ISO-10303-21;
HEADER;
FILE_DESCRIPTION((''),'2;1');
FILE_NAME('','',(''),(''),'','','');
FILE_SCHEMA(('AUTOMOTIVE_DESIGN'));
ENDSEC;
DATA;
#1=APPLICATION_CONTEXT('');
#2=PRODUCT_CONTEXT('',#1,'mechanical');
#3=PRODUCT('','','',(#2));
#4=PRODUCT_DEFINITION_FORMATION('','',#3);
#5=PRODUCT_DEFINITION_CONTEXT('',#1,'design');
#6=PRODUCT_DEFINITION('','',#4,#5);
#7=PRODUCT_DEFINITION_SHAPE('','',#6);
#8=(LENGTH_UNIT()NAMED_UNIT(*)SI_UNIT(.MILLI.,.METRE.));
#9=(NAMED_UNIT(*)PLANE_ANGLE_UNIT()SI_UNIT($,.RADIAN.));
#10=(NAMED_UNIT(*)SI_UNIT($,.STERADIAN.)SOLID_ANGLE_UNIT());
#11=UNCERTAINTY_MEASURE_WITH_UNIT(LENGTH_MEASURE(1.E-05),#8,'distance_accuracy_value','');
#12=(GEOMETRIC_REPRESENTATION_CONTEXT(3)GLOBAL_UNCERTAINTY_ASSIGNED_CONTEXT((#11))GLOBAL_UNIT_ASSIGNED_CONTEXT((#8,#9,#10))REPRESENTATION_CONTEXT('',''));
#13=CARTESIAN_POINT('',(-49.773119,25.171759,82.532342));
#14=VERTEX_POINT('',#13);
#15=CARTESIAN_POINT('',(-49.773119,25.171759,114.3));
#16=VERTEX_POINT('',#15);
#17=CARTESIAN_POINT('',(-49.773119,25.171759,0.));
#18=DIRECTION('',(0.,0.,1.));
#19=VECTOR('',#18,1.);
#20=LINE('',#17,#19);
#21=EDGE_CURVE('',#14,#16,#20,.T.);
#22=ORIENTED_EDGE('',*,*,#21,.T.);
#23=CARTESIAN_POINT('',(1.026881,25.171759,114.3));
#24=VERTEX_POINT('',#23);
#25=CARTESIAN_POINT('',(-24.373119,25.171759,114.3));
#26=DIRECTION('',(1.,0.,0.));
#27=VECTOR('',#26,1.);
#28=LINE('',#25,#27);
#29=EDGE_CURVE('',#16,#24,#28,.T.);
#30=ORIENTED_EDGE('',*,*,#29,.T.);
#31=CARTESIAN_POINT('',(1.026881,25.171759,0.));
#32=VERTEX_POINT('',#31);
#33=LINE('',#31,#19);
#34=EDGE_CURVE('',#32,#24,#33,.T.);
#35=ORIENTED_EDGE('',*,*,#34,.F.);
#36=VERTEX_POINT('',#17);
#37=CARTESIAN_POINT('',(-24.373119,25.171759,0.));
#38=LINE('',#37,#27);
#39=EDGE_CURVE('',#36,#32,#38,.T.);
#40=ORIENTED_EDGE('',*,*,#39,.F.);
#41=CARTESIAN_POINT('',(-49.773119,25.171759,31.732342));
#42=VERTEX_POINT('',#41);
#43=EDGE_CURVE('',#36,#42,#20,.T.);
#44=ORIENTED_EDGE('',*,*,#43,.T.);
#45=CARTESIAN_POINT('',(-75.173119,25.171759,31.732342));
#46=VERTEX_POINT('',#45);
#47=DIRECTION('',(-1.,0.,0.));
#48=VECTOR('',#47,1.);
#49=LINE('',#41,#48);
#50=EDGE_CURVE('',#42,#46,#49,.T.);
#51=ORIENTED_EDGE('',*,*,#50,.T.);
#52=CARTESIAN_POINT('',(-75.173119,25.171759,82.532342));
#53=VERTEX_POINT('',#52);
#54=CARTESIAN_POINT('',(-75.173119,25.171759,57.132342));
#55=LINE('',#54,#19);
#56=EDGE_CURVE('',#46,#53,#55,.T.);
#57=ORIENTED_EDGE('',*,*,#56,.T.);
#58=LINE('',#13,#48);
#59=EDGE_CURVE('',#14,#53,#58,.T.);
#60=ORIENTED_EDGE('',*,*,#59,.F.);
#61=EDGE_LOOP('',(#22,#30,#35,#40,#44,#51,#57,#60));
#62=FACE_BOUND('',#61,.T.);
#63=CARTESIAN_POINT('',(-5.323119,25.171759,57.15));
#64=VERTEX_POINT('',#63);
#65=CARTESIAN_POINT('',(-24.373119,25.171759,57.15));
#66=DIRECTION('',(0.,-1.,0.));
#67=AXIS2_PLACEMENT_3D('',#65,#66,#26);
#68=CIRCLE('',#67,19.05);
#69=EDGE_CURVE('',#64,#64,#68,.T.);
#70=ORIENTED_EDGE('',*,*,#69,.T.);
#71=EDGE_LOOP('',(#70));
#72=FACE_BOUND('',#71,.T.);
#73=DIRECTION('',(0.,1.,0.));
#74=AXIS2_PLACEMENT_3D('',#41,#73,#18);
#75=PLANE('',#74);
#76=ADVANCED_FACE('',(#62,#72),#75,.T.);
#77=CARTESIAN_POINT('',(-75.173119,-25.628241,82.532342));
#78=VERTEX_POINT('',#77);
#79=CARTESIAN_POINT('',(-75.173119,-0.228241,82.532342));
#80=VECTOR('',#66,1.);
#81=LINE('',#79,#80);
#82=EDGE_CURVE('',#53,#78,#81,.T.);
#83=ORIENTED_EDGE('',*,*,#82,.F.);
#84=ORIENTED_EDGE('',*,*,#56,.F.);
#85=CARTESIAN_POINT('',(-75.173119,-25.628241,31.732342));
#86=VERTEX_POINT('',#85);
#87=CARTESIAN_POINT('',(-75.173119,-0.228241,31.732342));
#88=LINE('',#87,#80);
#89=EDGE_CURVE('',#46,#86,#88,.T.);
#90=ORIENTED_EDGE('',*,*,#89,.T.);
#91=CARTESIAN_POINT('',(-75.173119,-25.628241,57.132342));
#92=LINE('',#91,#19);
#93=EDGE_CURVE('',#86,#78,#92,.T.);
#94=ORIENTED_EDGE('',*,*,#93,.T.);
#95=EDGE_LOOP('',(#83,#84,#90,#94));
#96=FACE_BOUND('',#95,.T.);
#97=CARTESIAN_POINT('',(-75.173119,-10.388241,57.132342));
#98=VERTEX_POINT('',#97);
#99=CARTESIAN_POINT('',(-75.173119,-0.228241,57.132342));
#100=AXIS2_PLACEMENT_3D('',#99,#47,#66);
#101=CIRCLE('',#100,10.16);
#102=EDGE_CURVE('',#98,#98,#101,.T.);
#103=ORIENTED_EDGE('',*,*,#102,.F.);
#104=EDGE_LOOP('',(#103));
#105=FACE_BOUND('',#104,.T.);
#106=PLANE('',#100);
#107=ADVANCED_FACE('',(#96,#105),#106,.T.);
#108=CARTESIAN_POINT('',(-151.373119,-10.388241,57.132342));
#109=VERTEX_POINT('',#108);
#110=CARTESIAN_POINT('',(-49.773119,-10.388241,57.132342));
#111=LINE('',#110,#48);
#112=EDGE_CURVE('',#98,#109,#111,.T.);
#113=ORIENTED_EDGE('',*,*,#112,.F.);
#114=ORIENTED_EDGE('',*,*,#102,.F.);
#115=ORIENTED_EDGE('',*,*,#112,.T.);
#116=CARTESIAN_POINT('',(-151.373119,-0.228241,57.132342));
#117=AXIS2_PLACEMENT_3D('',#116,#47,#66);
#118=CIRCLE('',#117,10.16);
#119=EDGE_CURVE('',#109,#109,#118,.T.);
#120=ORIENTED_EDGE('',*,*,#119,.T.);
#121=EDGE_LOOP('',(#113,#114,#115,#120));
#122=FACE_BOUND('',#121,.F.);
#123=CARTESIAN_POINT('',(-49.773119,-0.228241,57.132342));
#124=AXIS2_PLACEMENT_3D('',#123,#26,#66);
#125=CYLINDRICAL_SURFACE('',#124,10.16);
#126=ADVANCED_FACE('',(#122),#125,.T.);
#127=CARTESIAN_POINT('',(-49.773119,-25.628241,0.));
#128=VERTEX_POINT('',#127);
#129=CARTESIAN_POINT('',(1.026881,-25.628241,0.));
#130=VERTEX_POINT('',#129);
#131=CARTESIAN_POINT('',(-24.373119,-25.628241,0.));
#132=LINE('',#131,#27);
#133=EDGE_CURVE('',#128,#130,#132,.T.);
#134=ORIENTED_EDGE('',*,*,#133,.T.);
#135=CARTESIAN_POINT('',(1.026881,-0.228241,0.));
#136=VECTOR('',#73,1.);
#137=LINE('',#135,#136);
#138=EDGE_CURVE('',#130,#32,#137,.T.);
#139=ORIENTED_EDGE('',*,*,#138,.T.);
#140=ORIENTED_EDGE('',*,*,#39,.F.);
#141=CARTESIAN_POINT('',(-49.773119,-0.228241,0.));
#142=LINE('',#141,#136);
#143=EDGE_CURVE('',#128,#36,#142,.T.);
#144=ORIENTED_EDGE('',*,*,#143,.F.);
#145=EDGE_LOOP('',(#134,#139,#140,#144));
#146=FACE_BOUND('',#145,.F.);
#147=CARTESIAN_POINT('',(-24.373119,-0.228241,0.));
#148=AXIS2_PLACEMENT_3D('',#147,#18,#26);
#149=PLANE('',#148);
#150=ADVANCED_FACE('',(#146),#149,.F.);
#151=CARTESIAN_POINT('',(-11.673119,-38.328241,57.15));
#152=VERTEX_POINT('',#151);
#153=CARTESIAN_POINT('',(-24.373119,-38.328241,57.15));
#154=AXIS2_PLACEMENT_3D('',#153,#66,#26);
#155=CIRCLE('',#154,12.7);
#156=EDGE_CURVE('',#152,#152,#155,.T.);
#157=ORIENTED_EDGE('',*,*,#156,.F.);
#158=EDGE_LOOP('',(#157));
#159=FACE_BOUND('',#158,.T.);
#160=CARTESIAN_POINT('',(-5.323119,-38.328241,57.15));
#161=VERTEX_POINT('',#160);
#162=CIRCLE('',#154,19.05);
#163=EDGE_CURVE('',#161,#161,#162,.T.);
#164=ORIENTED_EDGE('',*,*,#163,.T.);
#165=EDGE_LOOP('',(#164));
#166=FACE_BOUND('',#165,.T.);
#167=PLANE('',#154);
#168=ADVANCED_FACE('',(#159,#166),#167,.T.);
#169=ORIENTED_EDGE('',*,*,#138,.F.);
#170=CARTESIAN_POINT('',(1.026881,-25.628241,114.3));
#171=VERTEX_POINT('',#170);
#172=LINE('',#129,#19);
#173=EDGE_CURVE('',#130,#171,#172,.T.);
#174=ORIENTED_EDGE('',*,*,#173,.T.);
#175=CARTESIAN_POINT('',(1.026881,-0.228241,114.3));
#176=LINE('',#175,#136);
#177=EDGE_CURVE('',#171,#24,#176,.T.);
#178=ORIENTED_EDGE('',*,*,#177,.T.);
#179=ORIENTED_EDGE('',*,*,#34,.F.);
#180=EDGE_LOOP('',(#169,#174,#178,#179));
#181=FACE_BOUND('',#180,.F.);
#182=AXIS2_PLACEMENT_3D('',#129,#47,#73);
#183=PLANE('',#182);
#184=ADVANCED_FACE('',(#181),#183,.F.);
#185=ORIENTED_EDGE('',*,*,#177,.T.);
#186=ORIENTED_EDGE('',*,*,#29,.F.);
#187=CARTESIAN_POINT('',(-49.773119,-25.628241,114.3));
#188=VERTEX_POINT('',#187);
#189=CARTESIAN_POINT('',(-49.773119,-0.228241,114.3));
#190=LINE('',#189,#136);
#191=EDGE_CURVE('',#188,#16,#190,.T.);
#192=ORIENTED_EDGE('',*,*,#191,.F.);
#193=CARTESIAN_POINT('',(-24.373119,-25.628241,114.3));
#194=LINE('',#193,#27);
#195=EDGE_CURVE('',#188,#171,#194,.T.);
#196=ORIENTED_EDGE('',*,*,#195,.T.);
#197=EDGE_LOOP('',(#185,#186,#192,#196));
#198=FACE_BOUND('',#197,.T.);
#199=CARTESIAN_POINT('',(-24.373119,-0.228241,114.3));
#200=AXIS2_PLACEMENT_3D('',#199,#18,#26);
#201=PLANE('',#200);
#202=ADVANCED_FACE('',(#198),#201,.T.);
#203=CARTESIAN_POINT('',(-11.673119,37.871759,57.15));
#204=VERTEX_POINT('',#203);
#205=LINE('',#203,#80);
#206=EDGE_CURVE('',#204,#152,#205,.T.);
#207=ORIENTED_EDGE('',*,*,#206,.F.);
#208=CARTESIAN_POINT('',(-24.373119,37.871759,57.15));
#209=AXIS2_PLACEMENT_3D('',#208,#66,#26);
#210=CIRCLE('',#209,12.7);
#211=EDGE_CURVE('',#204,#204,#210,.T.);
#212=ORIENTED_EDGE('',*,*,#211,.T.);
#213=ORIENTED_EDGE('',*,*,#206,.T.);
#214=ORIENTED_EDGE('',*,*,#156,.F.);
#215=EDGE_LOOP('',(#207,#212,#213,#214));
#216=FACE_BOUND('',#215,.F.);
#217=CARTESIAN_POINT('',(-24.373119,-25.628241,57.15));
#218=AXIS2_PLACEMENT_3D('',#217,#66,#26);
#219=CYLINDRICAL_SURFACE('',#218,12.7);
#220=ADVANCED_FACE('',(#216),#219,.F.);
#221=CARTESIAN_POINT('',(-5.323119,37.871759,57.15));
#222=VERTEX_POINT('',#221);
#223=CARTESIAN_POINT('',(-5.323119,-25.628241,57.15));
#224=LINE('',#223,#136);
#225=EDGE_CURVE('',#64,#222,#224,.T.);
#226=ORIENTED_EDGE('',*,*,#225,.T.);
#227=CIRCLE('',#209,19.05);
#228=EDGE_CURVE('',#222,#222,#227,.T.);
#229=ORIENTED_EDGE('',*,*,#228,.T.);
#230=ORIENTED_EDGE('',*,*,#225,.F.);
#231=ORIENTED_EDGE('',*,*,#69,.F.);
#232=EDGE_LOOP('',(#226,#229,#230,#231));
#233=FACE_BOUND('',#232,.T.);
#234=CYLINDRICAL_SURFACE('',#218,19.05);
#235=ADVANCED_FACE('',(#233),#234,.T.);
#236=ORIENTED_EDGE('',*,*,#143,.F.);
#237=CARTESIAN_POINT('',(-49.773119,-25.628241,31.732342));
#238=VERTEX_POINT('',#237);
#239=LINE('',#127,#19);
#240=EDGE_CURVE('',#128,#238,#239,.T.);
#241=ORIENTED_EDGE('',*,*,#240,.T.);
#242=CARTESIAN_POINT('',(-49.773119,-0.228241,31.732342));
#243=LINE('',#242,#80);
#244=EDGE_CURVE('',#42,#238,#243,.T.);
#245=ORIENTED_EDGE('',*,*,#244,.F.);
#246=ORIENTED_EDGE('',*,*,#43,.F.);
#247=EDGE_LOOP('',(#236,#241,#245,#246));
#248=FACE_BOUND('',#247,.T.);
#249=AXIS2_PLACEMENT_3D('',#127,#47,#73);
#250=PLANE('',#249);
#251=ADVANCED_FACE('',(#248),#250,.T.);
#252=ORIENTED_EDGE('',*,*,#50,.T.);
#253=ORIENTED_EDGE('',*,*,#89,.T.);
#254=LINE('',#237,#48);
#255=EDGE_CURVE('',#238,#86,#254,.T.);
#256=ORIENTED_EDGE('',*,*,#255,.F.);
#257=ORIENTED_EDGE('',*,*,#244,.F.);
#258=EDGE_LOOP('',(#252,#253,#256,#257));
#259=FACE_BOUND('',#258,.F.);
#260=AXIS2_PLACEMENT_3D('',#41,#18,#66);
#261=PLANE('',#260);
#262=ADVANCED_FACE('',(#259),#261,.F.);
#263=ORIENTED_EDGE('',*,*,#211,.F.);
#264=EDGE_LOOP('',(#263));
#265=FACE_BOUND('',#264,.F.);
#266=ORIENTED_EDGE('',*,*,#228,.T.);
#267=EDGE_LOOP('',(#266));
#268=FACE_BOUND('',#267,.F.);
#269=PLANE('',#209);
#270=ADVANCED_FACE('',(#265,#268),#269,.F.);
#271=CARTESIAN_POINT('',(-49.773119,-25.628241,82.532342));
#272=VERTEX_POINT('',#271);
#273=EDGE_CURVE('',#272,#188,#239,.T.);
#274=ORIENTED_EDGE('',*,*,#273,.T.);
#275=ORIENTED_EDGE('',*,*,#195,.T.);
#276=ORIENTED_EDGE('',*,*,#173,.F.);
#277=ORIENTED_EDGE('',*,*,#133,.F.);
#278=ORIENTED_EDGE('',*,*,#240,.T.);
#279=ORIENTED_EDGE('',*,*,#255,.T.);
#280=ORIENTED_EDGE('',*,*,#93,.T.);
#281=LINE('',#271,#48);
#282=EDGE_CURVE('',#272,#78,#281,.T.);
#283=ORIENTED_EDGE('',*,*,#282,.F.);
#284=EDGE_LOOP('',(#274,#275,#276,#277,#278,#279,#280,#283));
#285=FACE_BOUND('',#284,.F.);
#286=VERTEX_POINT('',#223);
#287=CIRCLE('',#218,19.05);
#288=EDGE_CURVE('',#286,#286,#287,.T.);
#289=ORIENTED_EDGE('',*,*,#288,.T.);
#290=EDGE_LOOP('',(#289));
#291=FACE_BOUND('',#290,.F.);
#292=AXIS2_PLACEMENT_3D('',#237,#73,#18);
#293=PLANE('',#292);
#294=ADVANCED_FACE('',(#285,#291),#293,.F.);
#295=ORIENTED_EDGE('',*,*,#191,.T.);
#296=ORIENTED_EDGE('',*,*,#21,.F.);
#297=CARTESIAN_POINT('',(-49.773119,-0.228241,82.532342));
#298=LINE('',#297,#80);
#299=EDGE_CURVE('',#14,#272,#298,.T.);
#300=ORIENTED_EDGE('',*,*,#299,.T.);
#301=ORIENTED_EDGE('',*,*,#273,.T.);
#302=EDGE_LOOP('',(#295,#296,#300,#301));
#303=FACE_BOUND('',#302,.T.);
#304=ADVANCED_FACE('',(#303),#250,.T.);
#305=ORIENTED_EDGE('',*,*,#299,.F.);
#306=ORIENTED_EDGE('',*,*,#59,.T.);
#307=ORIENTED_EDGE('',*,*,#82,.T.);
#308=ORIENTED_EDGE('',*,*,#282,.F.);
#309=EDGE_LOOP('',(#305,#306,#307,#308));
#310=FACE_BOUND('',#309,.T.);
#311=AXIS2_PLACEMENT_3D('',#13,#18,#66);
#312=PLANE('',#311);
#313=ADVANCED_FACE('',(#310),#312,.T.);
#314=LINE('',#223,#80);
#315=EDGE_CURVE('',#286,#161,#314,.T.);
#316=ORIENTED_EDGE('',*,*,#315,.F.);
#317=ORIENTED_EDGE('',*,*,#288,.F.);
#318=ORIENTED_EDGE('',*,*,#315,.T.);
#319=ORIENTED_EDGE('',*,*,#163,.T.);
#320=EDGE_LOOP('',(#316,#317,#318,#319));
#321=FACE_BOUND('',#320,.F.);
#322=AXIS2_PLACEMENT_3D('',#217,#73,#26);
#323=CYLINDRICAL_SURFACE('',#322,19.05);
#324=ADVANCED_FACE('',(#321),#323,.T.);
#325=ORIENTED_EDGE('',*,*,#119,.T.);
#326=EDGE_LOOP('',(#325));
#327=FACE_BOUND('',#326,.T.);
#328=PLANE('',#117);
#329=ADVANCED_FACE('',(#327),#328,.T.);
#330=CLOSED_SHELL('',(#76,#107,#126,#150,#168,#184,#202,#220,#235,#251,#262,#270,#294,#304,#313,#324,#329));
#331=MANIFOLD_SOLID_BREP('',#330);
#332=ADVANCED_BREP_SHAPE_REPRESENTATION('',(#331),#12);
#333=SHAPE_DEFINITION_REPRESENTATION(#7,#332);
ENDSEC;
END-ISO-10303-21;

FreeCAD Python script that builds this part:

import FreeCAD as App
import Part
import Sketcher
from FreeCAD import Vector
Q = App.Units.Quantity

doc = App.newDocument("Part")
params = doc.addObject("Spreadsheet::Sheet", "Params")
for row, (alias, value) in enumerate([
    ("sketch1_width", "2 in"),
    ("pad1_length", "4.5 in"),
    ("sketch2_diameter", "1 in"),
    ("pocket1_length", "3 in"),
    ("sketch3_diameter", "1 in"),
    ("sketch3_diameter2", "1.5 in"),
    ("pad2_length", "0.5 in"),
    ("pad2_length2", "2.5 in"),
    ("sketch4_diameter", "0.8 in"),
    ("pad3_length", "4 in"),
    ("sketch5_diameter", "0.8 in"),
    ("sketch5_width", "2 in"),
    ("pad4_length", "1 in"),
], start=1):
    params.set(f"A{row}", alias)
    params.set(f"B{row}", "=" + value)
    params.setAlias(f"B{row}", alias)

body = doc.addObject("PartDesign::Body", "Body")

sketch1 = body.newObject("Sketcher::SketchObject", "Sketch")
sketch1.AttachmentSupport = (doc.getObject("XY_Plane"), [""])
sketch1.MapMode = "FlatFace"
sketch1.addGeometry(Part.LineSegment(Vector(-49.773119, 25.171759, 0), Vector(-49.773119, -25.628241, 0)), False)
sketch1.addGeometry(Part.LineSegment(Vector(-49.773119, -25.628241, 0), Vector(1.026881, -25.628241, 0)), False)
sketch1.addGeometry(Part.LineSegment(Vector(1.026881, -25.628241, 0), Vector(1.026881, 25.171759, 0)), False)
sketch1.addGeometry(Part.LineSegment(Vector(1.026881, 25.171759, 0), Vector(-49.773119, 25.171759, 0)), False)
sketch1.addConstraint(Sketcher.Constraint("Coincident", 0, 2, 1, 1))
sketch1.addConstraint(Sketcher.Constraint("Coincident", 1, 2, 2, 1))
sketch1.addConstraint(Sketcher.Constraint("Coincident", 2, 2, 3, 1))
sketch1.addConstraint(Sketcher.Constraint("Coincident", 3, 2, 0, 1))
sketch1.addConstraint(Sketcher.Constraint("Vertical", 0))
sketch1.addConstraint(Sketcher.Constraint("Horizontal", 1))
sketch1.addConstraint(Sketcher.Constraint("Vertical", 2))
sketch1.addConstraint(Sketcher.Constraint("Horizontal", 3))
sketch1.addConstraint(Sketcher.Constraint("Equal", 3, 0))
sketch1.addConstraint(Sketcher.Constraint("DistanceX", 1, 1, 1, 2, Q("2 in")))
sketch1.addConstraint(Sketcher.Constraint("DistanceX", 0, 2, -1, 1, Q("49.773119 mm")))
sketch1.addConstraint(Sketcher.Constraint("DistanceY", 0, 2, -1, 1, Q("25.628241 mm")))
sketch1.setExpression("Constraints[9]", "Params.sketch1_width")
pad1 = body.newObject("PartDesign::Pad", "Pad")
pad1.Profile = sketch1
pad1.setExpression("Length", "Params.pad1_length")

sketch2 = body.newObject("Sketcher::SketchObject", "Sketch001")
sketch2.AttachmentSupport = (doc.getObject("XZ_Plane"), [""])
sketch2.MapMode = "FlatFace"
sketch2.AttachmentOffset = App.Placement(Vector(0, 0, 25.628241), App.Rotation())
sketch2.addGeometry(Part.Circle(Vector(-24.373119, 57.15, 0), Vector(0, 0, 1), 12.7), False)
sketch2.addConstraint(Sketcher.Constraint("Diameter", 0, Q("1 in")))
sketch2.addConstraint(Sketcher.Constraint("DistanceY", -1, 1, 0, 3, Q("2.25 in")))
sketch2.addConstraint(Sketcher.Constraint("DistanceX", 0, 3, -1, 1, Q("24.373119 mm")))
sketch2.setExpression("Constraints[0]", "Params.sketch2_diameter")
pocket1 = body.newObject("PartDesign::Pocket", "Pocket")
pocket1.Profile = sketch2
pocket1.setExpression("Length", "Params.pocket1_length")

sketch3 = body.newObject("Sketcher::SketchObject", "Sketch002")
sketch3.AttachmentSupport = (doc.getObject("XZ_Plane"), [""])
sketch3.MapMode = "FlatFace"
sketch3.AttachmentOffset = App.Placement(Vector(0, 0, 25.628241), App.Rotation())
sketch3.addGeometry(Part.Circle(Vector(-24.373119, 57.15, 0), Vector(0, 0, 1), 19.05), False)
sketch3.addGeometry(Part.Circle(Vector(-24.373119, 57.15, 0), Vector(0, 0, 1), 12.7), False)
sketch3.addConstraint(Sketcher.Constraint("Coincident", 1, 3, 0, 3))
sketch3.addConstraint(Sketcher.Constraint("Diameter", 1, Q("1 in")))
sketch3.addConstraint(Sketcher.Constraint("Diameter", 0, Q("1.5 in")))
sketch3.addConstraint(Sketcher.Constraint("DistanceY", -1, 1, 0, 3, Q("2.25 in")))
sketch3.addConstraint(Sketcher.Constraint("DistanceX", 0, 3, -1, 1, Q("24.373119 mm")))
sketch3.setExpression("Constraints[1]", "Params.sketch3_diameter")
sketch3.setExpression("Constraints[2]", "Params.sketch3_diameter2")
pad2 = body.newObject("PartDesign::Pad", "Pad001")
pad2.Profile = sketch3
pad2.Type = "TwoLengths"
pad2.setExpression("Length", "Params.pad2_length")
pad2.setExpression("Length2", "Params.pad2_length2")

sketch4 = body.newObject("Sketcher::SketchObject", "Sketch003")
sketch4.AttachmentSupport = (doc.getObject("YZ_Plane"), [""])
sketch4.MapMode = "FlatFace"
sketch4.AttachmentOffset = App.Placement(Vector(0, 0, -49.773119), App.Rotation())
sketch4.addGeometry(Part.Circle(Vector(-0.228241, 57.132342, 0), Vector(0, 0, 1), 10.16), False)
sketch4.addConstraint(Sketcher.Constraint("Diameter", 0, Q("0.8 in")))
sketch4.addConstraint(Sketcher.Constraint("DistanceX", 0, 3, -1, 1, Q("0.228241 mm")))
sketch4.addConstraint(Sketcher.Constraint("DistanceY", -1, 1, 0, 3, Q("57.132342 mm")))
sketch4.setExpression("Constraints[0]", "Params.sketch4_diameter")
pad3 = body.newObject("PartDesign::Pad", "Pad002")
pad3.Profile = sketch4
pad3.setExpression("Length", "Params.pad3_length")
pad3.Reversed = True

sketch5 = body.newObject("Sketcher::SketchObject", "Sketch004")
sketch5.AttachmentSupport = (doc.getObject("YZ_Plane"), [""])
sketch5.MapMode = "FlatFace"
sketch5.AttachmentOffset = App.Placement(Vector(0, 0, -49.773119), App.Rotation())
sketch5.addGeometry(Part.LineSegment(Vector(25.171759, 82.532342, 0), Vector(25.171759, 31.732342, 0)), False)
sketch5.addGeometry(Part.LineSegment(Vector(25.171759, 31.732342, 0), Vector(-25.628241, 31.732342, 0)), False)
sketch5.addGeometry(Part.LineSegment(Vector(-25.628241, 31.732342, 0), Vector(-25.628241, 82.532342, 0)), False)
sketch5.addGeometry(Part.LineSegment(Vector(-25.628241, 82.532342, 0), Vector(25.171759, 82.532342, 0)), False)
sketch5.addGeometry(Part.Circle(Vector(-0.228241, 57.132342, 0), Vector(0, 0, 1), 10.16), False)
sketch5.addConstraint(Sketcher.Constraint("Coincident", 0, 2, 1, 1))
sketch5.addConstraint(Sketcher.Constraint("Coincident", 1, 2, 2, 1))
sketch5.addConstraint(Sketcher.Constraint("Coincident", 2, 2, 3, 1))
sketch5.addConstraint(Sketcher.Constraint("Coincident", 3, 2, 0, 1))
sketch5.addConstraint(Sketcher.Constraint("Vertical", 0))
sketch5.addConstraint(Sketcher.Constraint("Horizontal", 1))
sketch5.addConstraint(Sketcher.Constraint("Vertical", 2))
sketch5.addConstraint(Sketcher.Constraint("Horizontal", 3))
sketch5.addConstraint(Sketcher.Constraint("Equal", 3, 0))
sketch5.addConstraint(Sketcher.Constraint("Diameter", 4, Q("0.8 in")))
sketch5.addConstraint(Sketcher.Constraint("DistanceX", 1, 2, 1, 1, Q("2 in")))
sketch5.addConstraint(Sketcher.Constraint("DistanceX", 4, 3, 0, 2, Q("1 in")))
sketch5.addConstraint(Sketcher.Constraint("DistanceY", 0, 2, 4, 3, Q("1 in")))
sketch5.addConstraint(Sketcher.Constraint("DistanceX", 4, 3, -1, 1, Q("0.228241 mm")))
sketch5.addConstraint(Sketcher.Constraint("DistanceY", -1, 1, 0, 2, Q("31.732342 mm")))
sketch5.setExpression("Constraints[9]", "Params.sketch5_diameter")
sketch5.setExpression("Constraints[10]", "Params.sketch5_width")
pad4 = body.newObject("PartDesign::Pad", "Pad003")
pad4.Profile = sketch5
pad4.setExpression("Length", "Params.pad4_length")
pad4.Reversed = True

doc.recompute()
